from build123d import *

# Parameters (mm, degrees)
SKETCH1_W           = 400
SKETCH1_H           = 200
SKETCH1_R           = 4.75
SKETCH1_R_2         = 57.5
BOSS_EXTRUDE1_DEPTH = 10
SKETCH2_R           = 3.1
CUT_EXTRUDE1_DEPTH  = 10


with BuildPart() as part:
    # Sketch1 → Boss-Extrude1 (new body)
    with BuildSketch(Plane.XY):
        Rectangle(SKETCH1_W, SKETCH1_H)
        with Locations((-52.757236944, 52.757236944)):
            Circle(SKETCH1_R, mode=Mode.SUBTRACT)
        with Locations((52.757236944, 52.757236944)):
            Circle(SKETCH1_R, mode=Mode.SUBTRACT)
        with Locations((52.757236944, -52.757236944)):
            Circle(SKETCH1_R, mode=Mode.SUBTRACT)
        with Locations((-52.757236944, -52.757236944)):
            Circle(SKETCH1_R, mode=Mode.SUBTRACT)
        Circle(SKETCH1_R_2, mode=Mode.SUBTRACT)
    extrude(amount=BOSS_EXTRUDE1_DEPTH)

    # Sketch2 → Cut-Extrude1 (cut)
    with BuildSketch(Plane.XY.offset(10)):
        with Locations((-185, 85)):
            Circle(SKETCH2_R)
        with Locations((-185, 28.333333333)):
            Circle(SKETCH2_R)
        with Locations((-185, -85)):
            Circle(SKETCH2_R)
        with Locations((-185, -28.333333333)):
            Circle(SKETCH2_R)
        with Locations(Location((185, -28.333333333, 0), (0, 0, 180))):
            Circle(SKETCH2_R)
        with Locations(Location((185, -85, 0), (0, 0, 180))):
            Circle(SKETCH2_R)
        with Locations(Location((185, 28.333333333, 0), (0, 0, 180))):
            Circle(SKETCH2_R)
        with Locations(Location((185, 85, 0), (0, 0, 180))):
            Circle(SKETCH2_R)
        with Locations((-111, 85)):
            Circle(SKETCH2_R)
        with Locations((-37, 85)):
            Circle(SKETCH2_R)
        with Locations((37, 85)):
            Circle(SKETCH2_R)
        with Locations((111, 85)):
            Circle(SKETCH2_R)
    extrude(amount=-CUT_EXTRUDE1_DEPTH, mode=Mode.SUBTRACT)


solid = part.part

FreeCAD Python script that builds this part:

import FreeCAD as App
import Part
import Sketcher
from FreeCAD import Vector


def add_polygon(sketch, points):
    """Adds a closed chain of lines whose ends are joined by coincident constraints."""
    first, n = sketch.GeometryCount, len(points)
    for a, b in zip(points, points[1:] + points[:1]):
        sketch.addGeometry(Part.LineSegment(App.Vector(*a, 0), App.Vector(*b, 0)), False)
    for i in range(n):
        sketch.addConstraint(Sketcher.Constraint("Coincident", first + i, 2, first + (i + 1) % n, 1))

doc = App.newDocument("Part")
body = doc.addObject("PartDesign::Body", "Body")

sketch1 = doc.addObject("Sketcher::SketchObject", "Sketch")
body.addObject(sketch1)
sketch1.AttachmentSupport = (doc.XY_Plane, [""])
sketch1.MapMode = "FlatFace"
add_polygon(sketch1, [(-200, 100), (-200, -100), (200, -100), (200, 100)])
sketch1.addGeometry(Part.Circle(Vector(-52.8, -52.8, 0), Vector(0, 0, 1), 4.8), False)
sketch1.addGeometry(Part.Circle(Vector(52.8, -52.8, 0), Vector(0, 0, 1), 4.8), False)
sketch1.addGeometry(Part.Circle(Vector(-52.8, 52.8, 0), Vector(0, 0, 1), 4.8), False)
sketch1.addGeometry(Part.Circle(Vector(0, 0, 0), Vector(0, 0, 1), 57.5), False)
sketch1.addGeometry(Part.Circle(Vector(52.8, 52.8, 0), Vector(0, 0, 1), 4.8), False)
sketch1.addConstraint([
    Sketcher.Constraint("Vertical", 0),
    Sketcher.Constraint("Horizontal", 1),
    Sketcher.Constraint("Vertical", 2),
    Sketcher.Constraint("Horizontal", 3),
    Sketcher.Constraint("Coincident", 7, 3, -1, 1),
    Sketcher.Constraint("Equal", 4, 5),
    Sketcher.Constraint("Equal", 5, 6),
    Sketcher.Constraint("Equal", 6, 8),
    Sketcher.Constraint("Symmetric", 5, 3, 6, 3, -1, 1),
    Sketcher.Constraint("Symmetric", 4, 3, 8, 3, -1, 1),
    Sketcher.Constraint("Symmetric", 0, 2, 2, 2, -1, 1),
    Sketcher.Constraint("Symmetric", 4, 3, 5, 3, -2),
    Sketcher.Constraint("Diameter", 7, 115.0),
    Sketcher.Constraint("Diameter", 4, 9.5),
    Sketcher.Constraint("DistanceX", 1, 1, 1, 2, 400.0),
    Sketcher.Constraint("DistanceY", 0, 2, 0, 1, 200.0),
    Sketcher.Constraint("DistanceX", 4, 3, -1, 1, 52.757237),
    Sketcher.Constraint("DistanceY", 4, 3, -1, 1, 52.757237),
])
pad1 = doc.addObject("PartDesign::Pad", "Pad")
body.addObject(pad1)
pad1.Profile = sketch1
pad1.Length = 10

sketch2 = doc.addObject("Sketcher::SketchObject", "Sketch001")
body.addObject(sketch2)
sketch2.AttachmentSupport = (doc.XY_Plane, [""])
sketch2.MapMode = "FlatFace"
sketch2.AttachmentOffset = App.Placement(Vector(0, 0, 10), App.Rotation())
sketch2.addGeometry([
    Part.Circle(Vector(-185, 85, 0), Vector(0, 0, 1), 3.1),
    Part.Circle(Vector(-185, 28.3, 0), Vector(0, 0, 1), 3.1),
    Part.Circle(Vector(-185, -85, 0), Vector(0, 0, 1), 3.1),
    Part.Circle(Vector(-185, -28.3, 0), Vector(0, 0, 1), 3.1),
    Part.Circle(Vector(185, -28.3, 0), Vector(0, 0, 1), 3.1),
    Part.Circle(Vector(185, -85, 0), Vector(0, 0, 1), 3.1),
    Part.Circle(Vector(185, 28.3, 0), Vector(0, 0, 1), 3.1),
    Part.Circle(Vector(185, 85, 0), Vector(0, 0, 1), 3.1),
    Part.Circle(Vector(-111, 85, 0), Vector(0, 0, 1), 3.1),
    Part.Circle(Vector(-37, 85, 0), Vector(0, 0, 1), 3.1),
    Part.Circle(Vector(37, 85, 0), Vector(0, 0, 1), 3.1),
    Part.Circle(Vector(111, 85, 0), Vector(0, 0, 1), 3.1),
], False)
sketch2.addConstraint([
    Sketcher.Constraint("Equal", 0, 1),
    Sketcher.Constraint("Equal", 1, 2),
    Sketcher.Constraint("Equal", 2, 3),
    Sketcher.Constraint("Equal", 3, 4),
    Sketcher.Constraint("Equal", 4, 5),
    Sketcher.Constraint("Equal", 5, 6),
    Sketcher.Constraint("Equal", 6, 7),
    Sketcher.Constraint("Equal", 7, 8),
    Sketcher.Constraint("Equal", 8, 9),
    Sketcher.Constraint("Equal", 9, 10),
    Sketcher.Constraint("Equal", 10, 11),
    Sketcher.Constraint("Symmetric", 1, 3, 4, 3, -1, 1),
    Sketcher.Constraint("Symmetric", 0, 3, 5, 3, -1, 1),
    Sketcher.Constraint("Symmetric", 3, 3, 6, 3, -1, 1),
    Sketcher.Constraint("Symmetric", 2, 3, 7, 3, -1, 1),
    Sketcher.Constraint("Symmetric", 3, 3, 4, 3, -2),
    Sketcher.Constraint("Symmetric", 2, 3, 5, 3, -2),
    Sketcher.Constraint("Symmetric", 9, 3, 10, 3, -2),
    Sketcher.Constraint("Symmetric", 8, 3, 11, 3, -2),
    Sketcher.Constraint("Horizontal", 7, 3, 8, 3),
    Sketcher.Constraint("Horizontal", 8, 3, 9, 3),
    Sketcher.Constraint("Vertical", 0, 3, 1, 3),
    Sketcher.Constraint("Diameter", 0, 6.2),
    Sketcher.Constraint("DistanceX", 0, 3, -1, 1, 185.0),
    Sketcher.Constraint("DistanceY", -1, 1, 0, 3, 85.0),
    Sketcher.Constraint("DistanceX", 8, 3, -1, 1, 111.0),
    Sketcher.Constraint("DistanceX", 9, 3, -1, 1, 37.0),
    Sketcher.Constraint("DistanceY", -1, 1, 1, 3, 28.333333),
])
pocket1 = doc.addObject("PartDesign::Pocket", "Pocket")
body.addObject(pocket1)
pocket1.Profile = sketch2
pocket1.Length = 10

doc.recompute()
